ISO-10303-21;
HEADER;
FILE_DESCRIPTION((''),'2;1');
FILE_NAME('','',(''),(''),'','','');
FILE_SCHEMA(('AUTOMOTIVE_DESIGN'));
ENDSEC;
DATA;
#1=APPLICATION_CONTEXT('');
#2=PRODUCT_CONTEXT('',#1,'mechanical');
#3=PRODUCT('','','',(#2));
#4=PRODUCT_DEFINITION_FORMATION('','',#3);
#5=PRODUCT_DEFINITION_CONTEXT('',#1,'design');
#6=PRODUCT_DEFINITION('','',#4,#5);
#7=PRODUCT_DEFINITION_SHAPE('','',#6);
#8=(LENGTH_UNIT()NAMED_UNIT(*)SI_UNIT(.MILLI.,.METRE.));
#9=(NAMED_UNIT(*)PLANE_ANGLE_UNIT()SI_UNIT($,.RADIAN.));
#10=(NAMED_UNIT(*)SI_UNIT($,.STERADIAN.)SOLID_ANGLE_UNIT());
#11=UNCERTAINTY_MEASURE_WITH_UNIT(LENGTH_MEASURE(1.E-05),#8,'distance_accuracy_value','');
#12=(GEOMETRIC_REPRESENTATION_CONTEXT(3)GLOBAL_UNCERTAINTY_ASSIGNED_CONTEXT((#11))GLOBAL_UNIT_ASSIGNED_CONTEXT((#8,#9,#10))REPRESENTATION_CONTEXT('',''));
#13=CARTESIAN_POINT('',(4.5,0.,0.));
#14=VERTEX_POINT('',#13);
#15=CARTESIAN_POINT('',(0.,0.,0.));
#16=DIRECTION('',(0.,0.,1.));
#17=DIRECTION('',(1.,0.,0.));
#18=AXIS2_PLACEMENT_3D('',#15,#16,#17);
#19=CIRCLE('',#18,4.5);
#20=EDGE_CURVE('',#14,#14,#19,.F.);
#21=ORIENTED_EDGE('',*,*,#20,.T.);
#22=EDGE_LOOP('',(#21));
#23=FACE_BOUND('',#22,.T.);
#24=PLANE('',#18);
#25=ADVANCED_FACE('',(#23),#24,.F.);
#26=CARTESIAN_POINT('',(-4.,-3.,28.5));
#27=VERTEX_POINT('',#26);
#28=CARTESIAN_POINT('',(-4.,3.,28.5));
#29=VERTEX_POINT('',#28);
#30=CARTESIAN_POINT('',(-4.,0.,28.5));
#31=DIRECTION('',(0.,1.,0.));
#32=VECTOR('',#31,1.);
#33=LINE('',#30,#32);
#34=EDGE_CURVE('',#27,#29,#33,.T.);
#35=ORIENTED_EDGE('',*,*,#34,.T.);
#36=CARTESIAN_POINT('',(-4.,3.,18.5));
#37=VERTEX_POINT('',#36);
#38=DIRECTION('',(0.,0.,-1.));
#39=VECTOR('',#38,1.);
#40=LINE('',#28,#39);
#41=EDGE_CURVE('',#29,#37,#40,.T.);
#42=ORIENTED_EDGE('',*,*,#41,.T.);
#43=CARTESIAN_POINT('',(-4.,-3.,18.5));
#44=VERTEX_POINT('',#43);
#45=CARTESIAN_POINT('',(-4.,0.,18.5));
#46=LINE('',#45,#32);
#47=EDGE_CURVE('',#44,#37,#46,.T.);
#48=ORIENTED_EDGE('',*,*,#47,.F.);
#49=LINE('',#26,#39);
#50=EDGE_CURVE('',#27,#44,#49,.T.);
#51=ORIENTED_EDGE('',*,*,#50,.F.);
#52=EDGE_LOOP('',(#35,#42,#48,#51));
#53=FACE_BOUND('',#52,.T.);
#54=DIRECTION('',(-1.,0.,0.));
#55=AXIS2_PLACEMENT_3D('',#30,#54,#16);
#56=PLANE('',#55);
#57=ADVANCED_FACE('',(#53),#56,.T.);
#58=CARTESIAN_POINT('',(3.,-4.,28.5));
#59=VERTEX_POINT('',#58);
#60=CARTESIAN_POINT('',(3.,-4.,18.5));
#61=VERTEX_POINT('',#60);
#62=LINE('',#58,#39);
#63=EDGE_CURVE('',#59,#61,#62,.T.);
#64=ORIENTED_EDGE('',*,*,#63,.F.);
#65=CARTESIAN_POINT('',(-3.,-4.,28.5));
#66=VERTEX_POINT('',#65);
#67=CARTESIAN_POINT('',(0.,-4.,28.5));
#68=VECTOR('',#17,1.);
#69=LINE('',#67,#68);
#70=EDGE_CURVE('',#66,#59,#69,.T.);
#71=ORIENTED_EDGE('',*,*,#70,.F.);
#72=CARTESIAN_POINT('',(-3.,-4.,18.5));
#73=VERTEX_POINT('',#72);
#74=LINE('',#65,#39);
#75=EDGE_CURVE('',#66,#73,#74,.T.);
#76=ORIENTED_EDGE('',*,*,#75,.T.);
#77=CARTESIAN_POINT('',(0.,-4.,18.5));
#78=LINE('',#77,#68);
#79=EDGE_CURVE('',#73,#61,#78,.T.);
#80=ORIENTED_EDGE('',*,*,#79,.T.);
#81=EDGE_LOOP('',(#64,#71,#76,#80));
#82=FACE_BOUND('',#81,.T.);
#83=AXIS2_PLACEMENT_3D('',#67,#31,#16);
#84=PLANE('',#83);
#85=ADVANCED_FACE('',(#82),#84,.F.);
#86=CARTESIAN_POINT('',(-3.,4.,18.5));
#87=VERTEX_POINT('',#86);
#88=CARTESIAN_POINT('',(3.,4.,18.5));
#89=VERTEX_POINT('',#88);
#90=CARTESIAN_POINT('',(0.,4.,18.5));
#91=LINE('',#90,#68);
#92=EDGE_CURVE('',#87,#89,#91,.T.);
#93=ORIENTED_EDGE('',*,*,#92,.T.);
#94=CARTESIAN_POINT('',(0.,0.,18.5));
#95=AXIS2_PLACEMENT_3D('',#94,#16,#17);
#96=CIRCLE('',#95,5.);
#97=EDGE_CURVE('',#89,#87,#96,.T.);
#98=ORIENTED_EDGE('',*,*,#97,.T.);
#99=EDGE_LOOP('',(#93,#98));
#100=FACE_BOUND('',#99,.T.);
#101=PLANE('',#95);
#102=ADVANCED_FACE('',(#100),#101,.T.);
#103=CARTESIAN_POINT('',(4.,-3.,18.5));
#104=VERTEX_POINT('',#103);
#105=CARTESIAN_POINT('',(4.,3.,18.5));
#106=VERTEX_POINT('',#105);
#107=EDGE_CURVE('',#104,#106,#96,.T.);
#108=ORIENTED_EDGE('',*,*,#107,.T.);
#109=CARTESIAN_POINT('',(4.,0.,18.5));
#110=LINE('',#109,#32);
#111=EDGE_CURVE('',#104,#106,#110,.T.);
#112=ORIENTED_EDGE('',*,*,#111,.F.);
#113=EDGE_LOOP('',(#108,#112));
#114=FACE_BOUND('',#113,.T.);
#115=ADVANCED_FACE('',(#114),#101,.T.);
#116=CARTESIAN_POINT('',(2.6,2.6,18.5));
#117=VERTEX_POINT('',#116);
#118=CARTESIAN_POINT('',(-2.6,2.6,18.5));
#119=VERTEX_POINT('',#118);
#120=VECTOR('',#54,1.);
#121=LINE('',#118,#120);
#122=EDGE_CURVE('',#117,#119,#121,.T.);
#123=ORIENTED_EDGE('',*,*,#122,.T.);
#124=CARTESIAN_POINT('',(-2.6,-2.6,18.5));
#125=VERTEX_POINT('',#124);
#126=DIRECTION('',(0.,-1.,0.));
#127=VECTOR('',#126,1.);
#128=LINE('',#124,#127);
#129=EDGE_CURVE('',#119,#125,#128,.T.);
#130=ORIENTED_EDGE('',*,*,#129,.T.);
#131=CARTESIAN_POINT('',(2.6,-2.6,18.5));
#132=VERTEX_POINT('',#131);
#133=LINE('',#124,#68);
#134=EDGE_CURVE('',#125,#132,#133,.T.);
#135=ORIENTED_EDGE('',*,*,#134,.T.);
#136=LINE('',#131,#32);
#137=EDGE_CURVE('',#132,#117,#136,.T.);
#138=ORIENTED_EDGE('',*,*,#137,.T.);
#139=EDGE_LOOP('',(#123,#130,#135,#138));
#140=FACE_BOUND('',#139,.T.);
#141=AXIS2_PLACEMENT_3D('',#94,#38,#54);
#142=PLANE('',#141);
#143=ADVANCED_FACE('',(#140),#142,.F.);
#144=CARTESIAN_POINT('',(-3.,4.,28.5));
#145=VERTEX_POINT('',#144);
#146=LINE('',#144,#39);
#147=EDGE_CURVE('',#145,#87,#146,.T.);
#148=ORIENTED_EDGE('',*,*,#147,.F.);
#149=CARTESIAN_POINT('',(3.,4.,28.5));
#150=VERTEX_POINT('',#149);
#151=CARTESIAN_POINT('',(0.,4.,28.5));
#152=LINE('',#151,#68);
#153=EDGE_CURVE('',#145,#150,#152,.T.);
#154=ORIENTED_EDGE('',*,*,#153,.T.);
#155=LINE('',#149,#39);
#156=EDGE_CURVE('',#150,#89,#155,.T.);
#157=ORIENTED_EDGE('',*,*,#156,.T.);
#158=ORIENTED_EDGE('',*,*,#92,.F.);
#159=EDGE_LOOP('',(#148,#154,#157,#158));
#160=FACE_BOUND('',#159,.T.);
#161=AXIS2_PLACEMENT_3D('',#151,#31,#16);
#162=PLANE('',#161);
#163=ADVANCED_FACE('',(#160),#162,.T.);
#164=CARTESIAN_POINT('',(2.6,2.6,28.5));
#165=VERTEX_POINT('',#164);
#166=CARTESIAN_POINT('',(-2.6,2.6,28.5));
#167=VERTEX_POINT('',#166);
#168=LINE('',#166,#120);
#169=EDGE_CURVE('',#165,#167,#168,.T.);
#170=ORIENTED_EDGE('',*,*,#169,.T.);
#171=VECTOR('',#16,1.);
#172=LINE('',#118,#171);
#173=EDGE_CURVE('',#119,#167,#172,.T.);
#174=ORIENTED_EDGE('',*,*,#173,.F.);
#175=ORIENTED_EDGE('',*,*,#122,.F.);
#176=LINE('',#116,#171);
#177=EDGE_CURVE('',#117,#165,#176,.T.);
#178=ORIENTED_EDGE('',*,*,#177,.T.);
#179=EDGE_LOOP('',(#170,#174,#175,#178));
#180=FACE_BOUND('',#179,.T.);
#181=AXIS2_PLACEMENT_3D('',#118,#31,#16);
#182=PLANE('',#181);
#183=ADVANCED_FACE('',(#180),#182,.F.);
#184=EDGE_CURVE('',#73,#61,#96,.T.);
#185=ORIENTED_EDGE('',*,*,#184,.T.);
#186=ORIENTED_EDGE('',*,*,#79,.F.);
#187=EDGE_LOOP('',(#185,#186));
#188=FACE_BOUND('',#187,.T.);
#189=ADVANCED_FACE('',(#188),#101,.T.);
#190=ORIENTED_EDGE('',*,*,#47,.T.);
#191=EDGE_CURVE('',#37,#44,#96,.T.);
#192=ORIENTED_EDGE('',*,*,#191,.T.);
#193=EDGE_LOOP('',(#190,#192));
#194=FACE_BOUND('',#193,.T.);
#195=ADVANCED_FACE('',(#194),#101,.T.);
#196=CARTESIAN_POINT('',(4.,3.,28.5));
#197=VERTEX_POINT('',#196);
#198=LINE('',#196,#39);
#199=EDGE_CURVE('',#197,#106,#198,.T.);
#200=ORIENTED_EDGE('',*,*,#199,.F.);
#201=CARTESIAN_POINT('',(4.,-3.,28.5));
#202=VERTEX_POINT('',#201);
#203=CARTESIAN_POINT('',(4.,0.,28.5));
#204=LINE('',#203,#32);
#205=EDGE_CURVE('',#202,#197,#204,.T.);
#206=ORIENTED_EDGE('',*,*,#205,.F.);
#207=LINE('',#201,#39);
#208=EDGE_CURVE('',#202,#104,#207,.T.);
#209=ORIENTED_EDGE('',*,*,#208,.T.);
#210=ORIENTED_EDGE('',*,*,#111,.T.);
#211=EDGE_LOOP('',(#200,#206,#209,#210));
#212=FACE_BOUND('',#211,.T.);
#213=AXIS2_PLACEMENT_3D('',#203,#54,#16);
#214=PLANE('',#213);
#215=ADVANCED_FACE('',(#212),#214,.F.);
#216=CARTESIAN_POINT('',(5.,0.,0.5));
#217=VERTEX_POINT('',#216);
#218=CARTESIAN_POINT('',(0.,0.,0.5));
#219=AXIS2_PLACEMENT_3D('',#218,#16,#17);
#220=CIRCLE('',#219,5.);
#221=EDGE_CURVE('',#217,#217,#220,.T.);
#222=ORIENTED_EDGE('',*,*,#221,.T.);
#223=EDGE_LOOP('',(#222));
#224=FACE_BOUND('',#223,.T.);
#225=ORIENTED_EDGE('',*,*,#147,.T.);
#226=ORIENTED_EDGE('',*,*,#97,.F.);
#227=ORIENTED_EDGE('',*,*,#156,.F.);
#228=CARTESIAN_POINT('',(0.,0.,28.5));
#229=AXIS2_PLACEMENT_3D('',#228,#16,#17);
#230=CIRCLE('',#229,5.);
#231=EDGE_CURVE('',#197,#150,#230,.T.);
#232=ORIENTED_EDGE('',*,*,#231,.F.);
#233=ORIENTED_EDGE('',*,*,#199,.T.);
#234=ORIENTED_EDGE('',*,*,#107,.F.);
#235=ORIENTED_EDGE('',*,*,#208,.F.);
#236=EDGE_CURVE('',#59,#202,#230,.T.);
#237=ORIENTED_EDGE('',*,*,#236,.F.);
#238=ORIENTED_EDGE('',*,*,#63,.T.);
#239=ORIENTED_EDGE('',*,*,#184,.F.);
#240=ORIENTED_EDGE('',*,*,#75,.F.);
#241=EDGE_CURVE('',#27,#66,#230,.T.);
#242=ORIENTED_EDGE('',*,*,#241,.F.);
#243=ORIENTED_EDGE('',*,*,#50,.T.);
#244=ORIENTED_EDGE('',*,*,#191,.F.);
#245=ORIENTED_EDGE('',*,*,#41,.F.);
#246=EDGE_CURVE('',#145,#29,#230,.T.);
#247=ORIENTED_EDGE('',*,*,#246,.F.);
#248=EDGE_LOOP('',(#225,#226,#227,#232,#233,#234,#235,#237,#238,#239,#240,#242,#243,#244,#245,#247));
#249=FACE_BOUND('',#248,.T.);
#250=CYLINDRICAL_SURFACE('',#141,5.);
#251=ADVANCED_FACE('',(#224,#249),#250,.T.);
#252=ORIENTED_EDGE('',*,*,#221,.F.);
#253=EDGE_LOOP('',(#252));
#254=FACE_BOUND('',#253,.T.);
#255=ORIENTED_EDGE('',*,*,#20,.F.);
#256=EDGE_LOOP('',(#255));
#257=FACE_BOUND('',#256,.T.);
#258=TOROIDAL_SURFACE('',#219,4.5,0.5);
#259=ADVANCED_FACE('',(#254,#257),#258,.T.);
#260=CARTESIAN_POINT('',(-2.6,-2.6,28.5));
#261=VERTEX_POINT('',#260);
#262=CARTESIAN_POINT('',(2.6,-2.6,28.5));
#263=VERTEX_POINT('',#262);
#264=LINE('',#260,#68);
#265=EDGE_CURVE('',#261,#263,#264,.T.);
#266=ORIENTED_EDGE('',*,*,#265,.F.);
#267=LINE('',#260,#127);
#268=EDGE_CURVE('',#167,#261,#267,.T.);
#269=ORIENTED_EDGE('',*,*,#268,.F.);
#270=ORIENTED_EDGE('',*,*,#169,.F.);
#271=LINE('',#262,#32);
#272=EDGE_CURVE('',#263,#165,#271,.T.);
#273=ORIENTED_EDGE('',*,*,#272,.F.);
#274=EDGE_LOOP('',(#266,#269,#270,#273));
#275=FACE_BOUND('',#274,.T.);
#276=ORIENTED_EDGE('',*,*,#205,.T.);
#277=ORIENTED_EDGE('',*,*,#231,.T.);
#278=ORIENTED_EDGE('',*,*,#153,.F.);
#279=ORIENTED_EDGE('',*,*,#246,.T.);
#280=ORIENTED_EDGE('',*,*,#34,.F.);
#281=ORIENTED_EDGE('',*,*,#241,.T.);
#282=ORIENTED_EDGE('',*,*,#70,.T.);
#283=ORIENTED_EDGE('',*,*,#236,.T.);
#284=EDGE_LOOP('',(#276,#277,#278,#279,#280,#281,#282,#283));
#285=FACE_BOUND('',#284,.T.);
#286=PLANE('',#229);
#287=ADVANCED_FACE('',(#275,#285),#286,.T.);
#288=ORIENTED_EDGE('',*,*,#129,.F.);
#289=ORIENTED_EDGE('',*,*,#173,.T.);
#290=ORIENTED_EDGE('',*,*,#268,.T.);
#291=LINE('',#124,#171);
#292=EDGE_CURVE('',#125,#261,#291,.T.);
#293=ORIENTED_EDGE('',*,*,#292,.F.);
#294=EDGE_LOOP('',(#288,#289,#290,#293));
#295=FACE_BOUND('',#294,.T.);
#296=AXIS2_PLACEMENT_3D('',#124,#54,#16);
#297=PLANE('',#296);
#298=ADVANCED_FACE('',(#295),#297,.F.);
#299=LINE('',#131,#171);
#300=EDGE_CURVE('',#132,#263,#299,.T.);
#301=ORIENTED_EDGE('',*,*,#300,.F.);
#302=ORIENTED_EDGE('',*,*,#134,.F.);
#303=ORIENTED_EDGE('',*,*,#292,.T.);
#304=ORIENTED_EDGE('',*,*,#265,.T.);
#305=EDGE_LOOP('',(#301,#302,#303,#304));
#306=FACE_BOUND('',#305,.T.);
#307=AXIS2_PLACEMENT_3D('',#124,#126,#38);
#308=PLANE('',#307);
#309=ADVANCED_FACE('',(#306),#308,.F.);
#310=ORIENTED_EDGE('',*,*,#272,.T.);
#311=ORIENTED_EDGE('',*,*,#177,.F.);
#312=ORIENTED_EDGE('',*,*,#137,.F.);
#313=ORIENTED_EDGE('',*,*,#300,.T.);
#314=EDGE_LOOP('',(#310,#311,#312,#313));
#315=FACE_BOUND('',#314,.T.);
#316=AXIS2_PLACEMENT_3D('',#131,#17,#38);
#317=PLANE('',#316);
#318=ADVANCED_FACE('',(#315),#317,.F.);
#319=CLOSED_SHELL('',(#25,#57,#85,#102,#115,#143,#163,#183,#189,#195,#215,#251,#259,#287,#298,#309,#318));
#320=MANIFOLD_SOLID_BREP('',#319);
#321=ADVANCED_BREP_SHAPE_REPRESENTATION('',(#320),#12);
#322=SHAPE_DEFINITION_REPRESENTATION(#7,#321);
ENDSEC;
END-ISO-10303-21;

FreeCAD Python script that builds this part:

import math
import FreeCAD as App
import Part
import Sketcher

V = App.Vector


def edges_at(feature, points):
    """Names of the edges that pass closest to the given points."""
    edges = feature.Shape.Edges
    near = lambda p: min(range(len(edges)), key=lambda i: edges[i].distToShape(Part.Vertex(*p))[0])
    return sorted({f"Edge{near(p) + 1}" for p in points})

doc = App.newDocument("Part")
body = doc.addObject("PartDesign::Body", "Body")

# Sketch on XY plane
sketch1 = body.newObject("Sketcher::SketchObject", "Sketch")
sketch1.AttachmentSupport = (doc.getObject("XY_Plane"), [""])
sketch1.MapMode = "FlatFace"
sketch1.addGeometry(Part.Circle(V(0, 0, 0), V(0, 0, 1), 5), False)
sketch1.addConstraint(Sketcher.Constraint("Coincident", 0, 3, -1, 1))
sketch1.addConstraint(Sketcher.Constraint("Diameter", 0, 10.0))
pad1 = body.newObject("PartDesign::Pad", "Pad")
pad1.Profile = sketch1
pad1.Length = 18.5

# Sketch on XY plane
sketch2 = body.newObject("Sketcher::SketchObject", "Sketch001")
sketch2.AttachmentSupport = (doc.getObject("XY_Plane"), [""])
sketch2.MapMode = "FlatFace"
sketch2.AttachmentOffset = App.Placement(V(0, 0, 18.5), App.Rotation())
sketch2.addGeometry(Part.ArcOfCircle(Part.Circle(V(0, 0, 0), V(0, 0, 1), 5), math.radians(-143.130102), math.radians(-126.869898)), False)
sketch2.addGeometry(Part.LineSegment(V(-3, -4, 0), V(3, -4, 0)), False)
sketch2.addGeometry(Part.ArcOfCircle(Part.Circle(V(0, 0, 0), V(0, 0, 1), 5), math.radians(-53.130102), math.radians(-36.869898)), False)
sketch2.addGeometry(Part.LineSegment(V(4, -3, 0), V(4, 3, 0)), False)
sketch2.addGeometry(Part.ArcOfCircle(Part.Circle(V(0, 0, 0), V(0, 0, 1), 5), math.radians(36.869898), math.radians(53.130102)), False)
sketch2.addGeometry(Part.LineSegment(V(3, 4, 0), V(-3, 4, 0)), False)
sketch2.addGeometry(Part.ArcOfCircle(Part.Circle(V(0, 0, 0), V(0, 0, 1), 5), math.radians(126.869898), math.radians(143.130102)), False)
sketch2.addGeometry(Part.LineSegment(V(-4, 3, 0), V(-4, -3, 0)), False)
sketch2.addConstraint(Sketcher.Constraint("Coincident", 0, 2, 1, 1))
sketch2.addConstraint(Sketcher.Constraint("Coincident", 1, 2, 2, 1))
sketch2.addConstraint(Sketcher.Constraint("Coincident", 2, 2, 3, 1))
sketch2.addConstraint(Sketcher.Constraint("Coincident", 3, 2, 4, 1))
sketch2.addConstraint(Sketcher.Constraint("Coincident", 4, 2, 5, 1))
sketch2.addConstraint(Sketcher.Constraint("Coincident", 5, 2, 6, 1))
sketch2.addConstraint(Sketcher.Constraint("Coincident", 6, 2, 7, 1))
sketch2.addConstraint(Sketcher.Constraint("Coincident", 7, 2, 0, 1))
sketch2.addConstraint(Sketcher.Constraint("Horizontal", 1))
sketch2.addConstraint(Sketcher.Constraint("Vertical", 3))
sketch2.addConstraint(Sketcher.Constraint("Horizontal", 5))
sketch2.addConstraint(Sketcher.Constraint("Vertical", 7))
sketch2.addConstraint(Sketcher.Constraint("Coincident", 0, 3, -1, 1))
sketch2.addConstraint(Sketcher.Constraint("Coincident", 2, 3, -1, 1))
sketch2.addConstraint(Sketcher.Constraint("Coincident", 4, 3, -1, 1))
sketch2.addConstraint(Sketcher.Constraint("Coincident", 6, 3, -1, 1))
sketch2.addConstraint(Sketcher.Constraint("Equal", 0, 2))
sketch2.addConstraint(Sketcher.Constraint("Equal", 2, 4))
sketch2.addConstraint(Sketcher.Constraint("Equal", 4, 6))
sketch2.addConstraint(Sketcher.Constraint("Horizontal", 3, 2, 6, 2))
sketch2.addConstraint(Sketcher.Constraint("Vertical", 1, 2, 4, 2))
sketch2.addConstraint(Sketcher.Constraint("Equal", 5, 3))
sketch2.addConstraint(Sketcher.Constraint("Radius", 0, 5.0))
sketch2.addConstraint(Sketcher.Constraint("DistanceX", 1, 1, 1, 2, 6.0))
pad2 = body.newObject("PartDesign::Pad", "Pad001")
pad2.Profile = sketch2
pad2.Length = 10

# Sketch on XY plane
sketch3 = body.newObject("Sketcher::SketchObject", "Sketch002")
sketch3.AttachmentSupport = (doc.getObject("XY_Plane"), [""])
sketch3.MapMode = "FlatFace"
sketch3.AttachmentOffset = App.Placement(V(0, 0, 28.5), App.Rotation())
sketch3.addGeometry(Part.LineSegment(V(-2.6, 2.6, 0), V(-2.6, -2.6, 0)), False)
sketch3.addGeometry(Part.LineSegment(V(-2.6, -2.6, 0), V(2.6, -2.6, 0)), False)
sketch3.addGeometry(Part.LineSegment(V(2.6, -2.6, 0), V(2.6, 2.6, 0)), False)
sketch3.addGeometry(Part.LineSegment(V(2.6, 2.6, 0), V(-2.6, 2.6, 0)), False)
sketch3.addConstraint(Sketcher.Constraint("Coincident", 0, 2, 1, 1))
sketch3.addConstraint(Sketcher.Constraint("Coincident", 1, 2, 2, 1))
sketch3.addConstraint(Sketcher.Constraint("Coincident", 2, 2, 3, 1))
sketch3.addConstraint(Sketcher.Constraint("Coincident", 3, 2, 0, 1))
sketch3.addConstraint(Sketcher.Constraint("Vertical", 0))
sketch3.addConstraint(Sketcher.Constraint("Horizontal", 1))
sketch3.addConstraint(Sketcher.Constraint("Vertical", 2))
sketch3.addConstraint(Sketcher.Constraint("Horizontal", 3))
sketch3.addConstraint(Sketcher.Constraint("Symmetric", 0, 2, 2, 2, -1, 1))
sketch3.addConstraint(Sketcher.Constraint("Equal", 3, 0))
sketch3.addConstraint(Sketcher.Constraint("DistanceX", 1, 1, 1, 2, 5.2))
pocket1 = body.newObject("PartDesign::Pocket", "Pocket")
pocket1.Profile = sketch3
pocket1.Length = 10
doc.recompute()

fillet = body.newObject("PartDesign::Fillet", "Fillet")
fillet.Base = (pocket1, edges_at(pocket1, [(-5, 0, 0)]))
fillet.Radius = 0.5

doc.recompute()
